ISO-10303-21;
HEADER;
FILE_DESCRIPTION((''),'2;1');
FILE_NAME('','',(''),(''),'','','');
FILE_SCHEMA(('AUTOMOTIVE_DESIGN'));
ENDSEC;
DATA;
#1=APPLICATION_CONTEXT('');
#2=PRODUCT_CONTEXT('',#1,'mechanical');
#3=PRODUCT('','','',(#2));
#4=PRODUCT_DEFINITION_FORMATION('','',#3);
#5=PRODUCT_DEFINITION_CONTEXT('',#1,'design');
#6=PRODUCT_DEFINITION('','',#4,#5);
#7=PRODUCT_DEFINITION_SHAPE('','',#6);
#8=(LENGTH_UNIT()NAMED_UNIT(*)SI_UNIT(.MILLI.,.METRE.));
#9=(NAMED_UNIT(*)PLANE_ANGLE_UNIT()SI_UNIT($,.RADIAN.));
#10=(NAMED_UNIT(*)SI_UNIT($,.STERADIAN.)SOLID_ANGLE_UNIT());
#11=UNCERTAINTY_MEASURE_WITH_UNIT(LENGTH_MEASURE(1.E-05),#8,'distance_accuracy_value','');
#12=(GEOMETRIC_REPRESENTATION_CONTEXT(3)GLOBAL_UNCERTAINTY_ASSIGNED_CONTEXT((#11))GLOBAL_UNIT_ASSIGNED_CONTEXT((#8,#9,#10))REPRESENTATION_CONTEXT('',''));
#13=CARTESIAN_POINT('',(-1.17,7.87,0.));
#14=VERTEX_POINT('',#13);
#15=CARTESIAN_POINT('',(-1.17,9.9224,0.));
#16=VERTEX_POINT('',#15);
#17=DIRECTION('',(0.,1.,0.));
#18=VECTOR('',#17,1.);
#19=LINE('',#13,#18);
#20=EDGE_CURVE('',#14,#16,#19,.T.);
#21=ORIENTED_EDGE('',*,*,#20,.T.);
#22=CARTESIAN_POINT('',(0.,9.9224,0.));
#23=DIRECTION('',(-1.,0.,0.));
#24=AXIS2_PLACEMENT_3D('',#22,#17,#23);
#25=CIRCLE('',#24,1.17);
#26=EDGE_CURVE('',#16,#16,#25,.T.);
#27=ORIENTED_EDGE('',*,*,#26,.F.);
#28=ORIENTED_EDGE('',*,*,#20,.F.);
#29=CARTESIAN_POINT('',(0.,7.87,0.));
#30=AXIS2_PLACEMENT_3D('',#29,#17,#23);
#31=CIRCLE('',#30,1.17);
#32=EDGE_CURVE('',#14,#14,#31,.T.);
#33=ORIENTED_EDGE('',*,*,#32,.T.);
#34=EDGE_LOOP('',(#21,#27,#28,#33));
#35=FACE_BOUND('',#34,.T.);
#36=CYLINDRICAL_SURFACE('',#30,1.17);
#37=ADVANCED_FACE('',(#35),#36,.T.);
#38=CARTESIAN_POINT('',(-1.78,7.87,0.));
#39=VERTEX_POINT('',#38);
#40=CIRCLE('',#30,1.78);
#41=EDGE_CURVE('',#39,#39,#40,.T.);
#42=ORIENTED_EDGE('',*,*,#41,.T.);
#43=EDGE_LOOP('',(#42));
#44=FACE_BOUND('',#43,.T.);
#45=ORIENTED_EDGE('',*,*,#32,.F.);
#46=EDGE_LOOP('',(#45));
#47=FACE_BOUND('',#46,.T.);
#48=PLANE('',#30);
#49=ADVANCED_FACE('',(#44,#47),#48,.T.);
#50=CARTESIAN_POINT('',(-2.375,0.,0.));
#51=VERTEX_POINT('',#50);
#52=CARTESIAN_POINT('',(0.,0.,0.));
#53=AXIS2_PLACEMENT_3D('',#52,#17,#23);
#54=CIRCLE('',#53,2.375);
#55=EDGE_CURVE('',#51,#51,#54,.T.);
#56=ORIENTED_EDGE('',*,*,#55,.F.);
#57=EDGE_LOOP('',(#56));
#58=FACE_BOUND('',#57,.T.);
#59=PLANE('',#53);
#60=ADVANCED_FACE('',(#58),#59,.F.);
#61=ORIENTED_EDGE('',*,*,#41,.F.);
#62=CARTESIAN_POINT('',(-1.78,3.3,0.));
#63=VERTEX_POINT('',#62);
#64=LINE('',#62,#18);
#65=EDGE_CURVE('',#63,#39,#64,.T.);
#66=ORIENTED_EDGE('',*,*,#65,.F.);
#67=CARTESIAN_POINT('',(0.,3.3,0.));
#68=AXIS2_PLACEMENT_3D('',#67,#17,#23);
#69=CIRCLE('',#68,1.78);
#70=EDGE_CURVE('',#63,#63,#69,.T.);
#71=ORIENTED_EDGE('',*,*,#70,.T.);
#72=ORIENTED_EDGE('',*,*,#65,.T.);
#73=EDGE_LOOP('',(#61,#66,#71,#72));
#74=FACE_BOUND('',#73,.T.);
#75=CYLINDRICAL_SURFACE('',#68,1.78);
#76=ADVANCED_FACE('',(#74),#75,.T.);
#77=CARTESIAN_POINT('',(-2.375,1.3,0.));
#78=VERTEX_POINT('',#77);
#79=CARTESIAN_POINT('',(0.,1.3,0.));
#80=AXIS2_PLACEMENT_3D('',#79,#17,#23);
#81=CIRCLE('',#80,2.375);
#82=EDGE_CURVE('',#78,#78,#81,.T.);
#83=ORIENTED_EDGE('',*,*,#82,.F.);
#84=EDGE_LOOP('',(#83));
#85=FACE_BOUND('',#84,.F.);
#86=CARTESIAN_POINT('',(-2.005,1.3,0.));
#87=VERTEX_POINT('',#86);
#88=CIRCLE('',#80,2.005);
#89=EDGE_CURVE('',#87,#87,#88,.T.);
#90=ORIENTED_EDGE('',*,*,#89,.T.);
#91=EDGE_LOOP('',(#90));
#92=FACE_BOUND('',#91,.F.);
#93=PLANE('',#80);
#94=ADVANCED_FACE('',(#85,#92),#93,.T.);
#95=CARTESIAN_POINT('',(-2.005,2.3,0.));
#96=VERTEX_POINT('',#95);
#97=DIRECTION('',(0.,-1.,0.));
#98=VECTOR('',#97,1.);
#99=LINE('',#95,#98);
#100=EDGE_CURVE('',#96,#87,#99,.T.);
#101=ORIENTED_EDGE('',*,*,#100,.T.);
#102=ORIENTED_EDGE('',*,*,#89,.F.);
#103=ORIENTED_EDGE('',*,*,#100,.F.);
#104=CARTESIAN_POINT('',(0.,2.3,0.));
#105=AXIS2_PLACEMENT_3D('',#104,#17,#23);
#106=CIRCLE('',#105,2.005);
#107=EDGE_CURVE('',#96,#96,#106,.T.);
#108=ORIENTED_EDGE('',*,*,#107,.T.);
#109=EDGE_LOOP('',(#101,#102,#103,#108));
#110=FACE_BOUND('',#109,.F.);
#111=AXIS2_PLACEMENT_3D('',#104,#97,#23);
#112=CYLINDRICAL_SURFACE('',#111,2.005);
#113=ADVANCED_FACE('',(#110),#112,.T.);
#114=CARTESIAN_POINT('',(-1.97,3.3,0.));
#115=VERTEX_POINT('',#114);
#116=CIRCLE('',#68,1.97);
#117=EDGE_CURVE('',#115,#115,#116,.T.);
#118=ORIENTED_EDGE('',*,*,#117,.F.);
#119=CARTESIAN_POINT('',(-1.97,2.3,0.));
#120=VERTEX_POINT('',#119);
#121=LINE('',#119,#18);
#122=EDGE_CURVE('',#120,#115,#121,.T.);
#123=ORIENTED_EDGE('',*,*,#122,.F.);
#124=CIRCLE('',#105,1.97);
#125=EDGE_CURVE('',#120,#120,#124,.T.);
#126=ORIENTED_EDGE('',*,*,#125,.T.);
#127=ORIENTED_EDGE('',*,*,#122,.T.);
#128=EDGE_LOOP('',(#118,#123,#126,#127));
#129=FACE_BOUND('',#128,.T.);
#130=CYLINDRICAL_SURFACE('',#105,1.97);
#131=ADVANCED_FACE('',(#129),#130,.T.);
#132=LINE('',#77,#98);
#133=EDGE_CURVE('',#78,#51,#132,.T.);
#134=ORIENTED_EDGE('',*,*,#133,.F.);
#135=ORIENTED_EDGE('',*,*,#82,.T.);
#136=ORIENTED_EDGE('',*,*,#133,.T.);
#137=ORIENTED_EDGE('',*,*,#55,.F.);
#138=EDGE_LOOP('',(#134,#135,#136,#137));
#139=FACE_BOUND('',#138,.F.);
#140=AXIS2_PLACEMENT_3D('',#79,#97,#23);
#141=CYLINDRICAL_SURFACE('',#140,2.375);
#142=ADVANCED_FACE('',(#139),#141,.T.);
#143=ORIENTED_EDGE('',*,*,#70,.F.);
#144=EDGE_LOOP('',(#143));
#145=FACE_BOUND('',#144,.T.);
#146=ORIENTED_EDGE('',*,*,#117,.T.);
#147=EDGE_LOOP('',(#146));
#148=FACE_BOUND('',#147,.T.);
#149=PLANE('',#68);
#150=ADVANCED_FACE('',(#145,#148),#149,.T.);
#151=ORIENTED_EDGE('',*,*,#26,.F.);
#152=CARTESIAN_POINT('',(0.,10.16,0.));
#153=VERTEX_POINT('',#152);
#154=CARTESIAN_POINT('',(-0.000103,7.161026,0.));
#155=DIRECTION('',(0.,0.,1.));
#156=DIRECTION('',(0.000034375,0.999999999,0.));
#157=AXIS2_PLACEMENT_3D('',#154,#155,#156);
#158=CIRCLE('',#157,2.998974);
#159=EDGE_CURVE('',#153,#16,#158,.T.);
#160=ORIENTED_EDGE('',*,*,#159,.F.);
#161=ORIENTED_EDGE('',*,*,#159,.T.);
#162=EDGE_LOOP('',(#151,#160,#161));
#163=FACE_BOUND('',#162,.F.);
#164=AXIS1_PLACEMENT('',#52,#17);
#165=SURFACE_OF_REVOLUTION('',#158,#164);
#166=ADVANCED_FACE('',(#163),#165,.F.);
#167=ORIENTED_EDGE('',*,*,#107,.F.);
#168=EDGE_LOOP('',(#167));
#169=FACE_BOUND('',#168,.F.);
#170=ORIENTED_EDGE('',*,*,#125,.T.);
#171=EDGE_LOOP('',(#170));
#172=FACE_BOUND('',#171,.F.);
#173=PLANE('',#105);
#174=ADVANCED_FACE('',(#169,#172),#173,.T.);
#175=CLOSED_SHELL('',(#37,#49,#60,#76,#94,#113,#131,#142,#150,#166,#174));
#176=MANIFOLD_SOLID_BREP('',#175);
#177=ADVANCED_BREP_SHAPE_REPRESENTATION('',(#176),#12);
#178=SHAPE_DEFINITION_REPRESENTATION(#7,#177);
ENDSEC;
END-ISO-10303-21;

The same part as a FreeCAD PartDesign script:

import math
import FreeCAD as App
import Part
import Sketcher
Q = App.Units.Quantity

doc = App.newDocument("Part")
params = doc.addObject("Spreadsheet::Sheet", "Params")
for row, (alias, value) in enumerate([
    ("sketch1_height", "1 mm"),
    ("sketch1_height2", "1.3 mm"),
    ("revolution_angle", "360 deg"),
], start=1):
    params.set(f"A{row}", alias)
    params.set(f"B{row}", "=" + value)
    params.setAlias(f"B{row}", alias)

body = doc.addObject("PartDesign::Body", "Body")

# Sketch on XY plane
sketch1 = doc.addObject("Sketcher::SketchObject", "Sketch")
body.addObject(sketch1)
sketch1.AttachmentSupport = (doc.XY_Plane, [""])
sketch1.MapMode = "FlatFace"
sketch1.addGeometry([
    Part.LineSegment(App.Vector(-2.375, 0, 0), App.Vector(0, 0, 0)),  # 0
    Part.LineSegment(App.Vector(0, 0, 0), App.Vector(0, 10.16, 0)),  # 1
    Part.ArcOfCircle(Part.Circle(App.Vector(-0.000103, 7.161026, 0), App.Vector(0, 0, 1), 2.998974), math.radians(89.99803), math.radians(112.960661)),  # 2
    Part.LineSegment(App.Vector(-1.17, 9.9224, 0), App.Vector(-1.17, 7.87, 0)),  # 3
    Part.LineSegment(App.Vector(-1.17, 7.87, 0), App.Vector(-1.78, 7.87, 0)),  # 4
    Part.LineSegment(App.Vector(-1.78, 7.87, 0), App.Vector(-1.78, 3.3, 0)),  # 5
    Part.LineSegment(App.Vector(-1.78, 3.3, 0), App.Vector(-1.97, 3.3, 0)),  # 6
    Part.LineSegment(App.Vector(-1.97, 3.3, 0), App.Vector(-1.97, 2.3, 0)),  # 7
    Part.LineSegment(App.Vector(-1.97, 2.3, 0), App.Vector(-2.005, 2.3, 0)),  # 8
    Part.LineSegment(App.Vector(-2.005, 2.3, 0), App.Vector(-2.005, 1.3, 0)),  # 9
    Part.LineSegment(App.Vector(-2.005, 1.3, 0), App.Vector(-2.375, 1.3, 0)),  # 10
    Part.LineSegment(App.Vector(-2.375, 1.3, 0), App.Vector(-2.375, 0, 0)),  # 11
], False)
sketch1.addConstraint([
    Sketcher.Constraint("Coincident", 0, 2, 1, 1),
    Sketcher.Constraint("Coincident", 1, 2, 2, 1),
    Sketcher.Constraint("Coincident", 2, 2, 3, 1),
    Sketcher.Constraint("Coincident", 3, 2, 4, 1),
    Sketcher.Constraint("Coincident", 4, 2, 5, 1),
    Sketcher.Constraint("Coincident", 5, 2, 6, 1),
    Sketcher.Constraint("Coincident", 6, 2, 7, 1),
    Sketcher.Constraint("Coincident", 7, 2, 8, 1),
    Sketcher.Constraint("Coincident", 8, 2, 9, 1),
    Sketcher.Constraint("Coincident", 9, 2, 10, 1),
    Sketcher.Constraint("Coincident", 10, 2, 11, 1),
    Sketcher.Constraint("Coincident", 11, 2, 0, 1),
    Sketcher.Constraint("Horizontal", 0),
    Sketcher.Constraint("Vertical", 1),
    Sketcher.Constraint("Vertical", 3),
    Sketcher.Constraint("Horizontal", 4),
    Sketcher.Constraint("Vertical", 5),
    Sketcher.Constraint("Horizontal", 6),
    Sketcher.Constraint("Vertical", 7),
    Sketcher.Constraint("Horizontal", 8),
    Sketcher.Constraint("Vertical", 9),
    Sketcher.Constraint("Horizontal", 10),
    Sketcher.Constraint("Vertical", 11),
    Sketcher.Constraint("Coincident", 0, 2, -1, 1),
    Sketcher.Constraint("PointOnObject", 2, 3, -2),
    Sketcher.Constraint("Equal", 7, 9),
    Sketcher.Constraint("DistanceY", 7, 2, 7, 1, Q("1 mm")),
    Sketcher.Constraint("DistanceY", 11, 2, 11, 1, Q("1.3 mm")),
    Sketcher.Constraint("DistanceX", 0, 1, 0, 2, Q("2.375 mm")),
    Sketcher.Constraint("DistanceX", 2, 2, -1, 1, Q("1.17 mm")),
    Sketcher.Constraint("DistanceY", -1, 1, 3, 2, Q("7.87 mm")),
    Sketcher.Constraint("DistanceX", 4, 2, -1, 1, Q("1.78 mm")),
    Sketcher.Constraint("DistanceX", 6, 2, -1, 1, Q("1.97 mm")),
    Sketcher.Constraint("DistanceY", 3, 2, 1, 2, Q("2.29 mm")),
    Sketcher.Constraint("DistanceX", 8, 2, -1, 1, Q("2.005 mm")),
    Sketcher.Constraint("Radius", 2, Q("2.999 mm")),
])
sketch1.setExpression("Constraints[26]", "Params.sketch1_height")
sketch1.setExpression("Constraints[27]", "Params.sketch1_height2")
revolution = doc.addObject("PartDesign::Revolution", "Revolution")
body.addObject(revolution)
revolution.Profile = sketch1
revolution.ReferenceAxis = (sketch1, ["V_Axis"])
revolution.setExpression("Angle", "Params.revolution_angle")

doc.recompute()
